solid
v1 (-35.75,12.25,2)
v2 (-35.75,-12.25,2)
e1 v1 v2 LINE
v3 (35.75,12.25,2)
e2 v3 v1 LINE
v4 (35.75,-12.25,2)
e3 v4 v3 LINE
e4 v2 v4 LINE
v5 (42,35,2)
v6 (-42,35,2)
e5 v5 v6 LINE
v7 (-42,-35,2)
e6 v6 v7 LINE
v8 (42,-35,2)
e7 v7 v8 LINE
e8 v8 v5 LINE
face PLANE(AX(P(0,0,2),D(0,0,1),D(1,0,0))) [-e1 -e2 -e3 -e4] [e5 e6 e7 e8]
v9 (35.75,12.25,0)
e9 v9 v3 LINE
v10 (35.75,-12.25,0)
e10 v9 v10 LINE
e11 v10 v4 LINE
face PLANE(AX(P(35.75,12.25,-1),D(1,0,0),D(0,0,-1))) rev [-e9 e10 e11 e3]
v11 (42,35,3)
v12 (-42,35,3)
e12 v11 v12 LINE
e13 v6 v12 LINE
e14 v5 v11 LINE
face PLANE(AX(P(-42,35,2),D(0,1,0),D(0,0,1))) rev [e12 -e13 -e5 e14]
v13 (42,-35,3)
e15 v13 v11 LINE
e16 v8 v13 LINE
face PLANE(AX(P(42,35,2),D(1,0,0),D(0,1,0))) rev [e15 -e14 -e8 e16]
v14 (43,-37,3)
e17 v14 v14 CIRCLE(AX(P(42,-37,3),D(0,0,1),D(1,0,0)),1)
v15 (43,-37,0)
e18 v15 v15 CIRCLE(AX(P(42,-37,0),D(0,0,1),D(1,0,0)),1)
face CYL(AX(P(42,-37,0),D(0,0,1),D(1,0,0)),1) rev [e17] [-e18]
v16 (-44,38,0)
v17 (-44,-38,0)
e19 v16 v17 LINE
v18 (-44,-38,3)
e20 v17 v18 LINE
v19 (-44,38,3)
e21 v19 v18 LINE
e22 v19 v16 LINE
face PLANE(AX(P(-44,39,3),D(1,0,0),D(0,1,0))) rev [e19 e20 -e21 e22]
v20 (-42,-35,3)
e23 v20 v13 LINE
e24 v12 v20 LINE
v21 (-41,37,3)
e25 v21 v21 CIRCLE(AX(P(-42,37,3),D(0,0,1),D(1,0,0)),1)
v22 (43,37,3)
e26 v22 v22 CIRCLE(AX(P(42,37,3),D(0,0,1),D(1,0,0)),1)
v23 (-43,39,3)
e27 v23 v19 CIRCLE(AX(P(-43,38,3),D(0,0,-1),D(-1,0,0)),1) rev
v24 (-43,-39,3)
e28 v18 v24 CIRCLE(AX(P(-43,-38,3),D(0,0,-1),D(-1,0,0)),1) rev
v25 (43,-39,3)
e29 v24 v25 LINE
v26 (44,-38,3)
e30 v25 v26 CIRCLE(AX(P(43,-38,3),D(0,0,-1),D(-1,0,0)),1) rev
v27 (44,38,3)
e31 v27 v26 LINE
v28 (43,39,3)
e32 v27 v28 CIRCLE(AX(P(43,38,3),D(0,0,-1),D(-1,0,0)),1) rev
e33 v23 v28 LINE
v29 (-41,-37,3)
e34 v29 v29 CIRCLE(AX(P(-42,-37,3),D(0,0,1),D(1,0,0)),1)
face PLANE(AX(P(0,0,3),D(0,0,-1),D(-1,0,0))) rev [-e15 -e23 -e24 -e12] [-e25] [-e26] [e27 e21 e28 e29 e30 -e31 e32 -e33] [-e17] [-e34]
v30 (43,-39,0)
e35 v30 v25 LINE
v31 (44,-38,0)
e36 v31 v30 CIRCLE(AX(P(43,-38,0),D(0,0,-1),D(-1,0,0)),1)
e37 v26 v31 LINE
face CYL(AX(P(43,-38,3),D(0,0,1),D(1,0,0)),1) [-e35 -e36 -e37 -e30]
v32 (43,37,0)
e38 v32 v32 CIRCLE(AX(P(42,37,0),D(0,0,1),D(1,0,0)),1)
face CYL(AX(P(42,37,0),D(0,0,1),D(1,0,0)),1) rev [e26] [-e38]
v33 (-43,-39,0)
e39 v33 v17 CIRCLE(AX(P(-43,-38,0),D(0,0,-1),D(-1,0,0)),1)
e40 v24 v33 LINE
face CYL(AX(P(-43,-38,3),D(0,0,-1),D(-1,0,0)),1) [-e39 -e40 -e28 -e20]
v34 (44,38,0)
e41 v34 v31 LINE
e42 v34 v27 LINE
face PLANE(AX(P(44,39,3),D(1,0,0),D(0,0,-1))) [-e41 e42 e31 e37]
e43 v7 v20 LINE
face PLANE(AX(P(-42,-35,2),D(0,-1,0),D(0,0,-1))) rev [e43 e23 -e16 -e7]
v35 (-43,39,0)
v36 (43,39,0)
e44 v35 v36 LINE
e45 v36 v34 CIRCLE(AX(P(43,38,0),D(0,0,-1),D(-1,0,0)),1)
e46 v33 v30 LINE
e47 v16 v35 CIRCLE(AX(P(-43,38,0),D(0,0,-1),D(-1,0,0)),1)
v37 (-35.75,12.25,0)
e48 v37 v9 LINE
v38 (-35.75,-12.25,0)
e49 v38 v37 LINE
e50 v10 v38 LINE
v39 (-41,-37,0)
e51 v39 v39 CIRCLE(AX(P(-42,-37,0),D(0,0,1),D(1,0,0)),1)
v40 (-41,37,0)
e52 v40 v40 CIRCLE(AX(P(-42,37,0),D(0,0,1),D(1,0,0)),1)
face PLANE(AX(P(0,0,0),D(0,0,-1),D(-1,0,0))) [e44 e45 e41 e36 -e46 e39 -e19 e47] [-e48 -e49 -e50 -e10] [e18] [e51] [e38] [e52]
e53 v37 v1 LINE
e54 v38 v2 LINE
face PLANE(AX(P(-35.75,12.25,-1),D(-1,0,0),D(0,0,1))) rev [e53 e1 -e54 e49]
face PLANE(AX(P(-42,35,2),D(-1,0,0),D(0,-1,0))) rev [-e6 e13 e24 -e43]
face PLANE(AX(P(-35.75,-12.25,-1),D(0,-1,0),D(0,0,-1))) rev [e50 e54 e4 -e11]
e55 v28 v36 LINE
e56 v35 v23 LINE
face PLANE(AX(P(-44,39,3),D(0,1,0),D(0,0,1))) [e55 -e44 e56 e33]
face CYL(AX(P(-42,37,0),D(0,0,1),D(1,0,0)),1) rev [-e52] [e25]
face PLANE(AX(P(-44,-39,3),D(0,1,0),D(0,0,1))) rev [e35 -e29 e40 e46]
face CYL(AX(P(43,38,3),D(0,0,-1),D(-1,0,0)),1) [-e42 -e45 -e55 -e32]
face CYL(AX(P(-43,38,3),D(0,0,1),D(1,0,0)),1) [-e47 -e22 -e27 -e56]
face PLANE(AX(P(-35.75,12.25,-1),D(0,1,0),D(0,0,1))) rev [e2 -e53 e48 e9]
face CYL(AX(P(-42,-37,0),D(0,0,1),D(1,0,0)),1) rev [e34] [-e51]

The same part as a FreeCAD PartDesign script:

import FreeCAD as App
import Part
import Sketcher
from FreeCAD import Vector


def edges_at(feature, points):
    """Names of the edges that pass closest to the given points."""
    edges = feature.Shape.Edges
    near = lambda p: min(range(len(edges)), key=lambda i: edges[i].distToShape(Part.Vertex(*p))[0])
    return sorted({f"Edge{near(p) + 1}" for p in points})


def add_polygon(sketch, points):
    """Adds a closed chain of lines whose ends are joined by coincident constraints."""
    first, n = sketch.GeometryCount, len(points)
    for a, b in zip(points, points[1:] + points[:1]):
        sketch.addGeometry(Part.LineSegment(App.Vector(*a, 0), App.Vector(*b, 0)), False)
    for i in range(n):
        sketch.addConstraint(Sketcher.Constraint("Coincident", first + i, 2, first + (i + 1) % n, 1))

doc = App.newDocument("Part")
body = doc.addObject("PartDesign::Body", "Body")

# Sketch on XY plane
sketch1 = doc.addObject("Sketcher::SketchObject", "Sketch")
body.addObject(sketch1)
sketch1.AttachmentSupport = (doc.XY_Plane, [""])
sketch1.MapMode = "FlatFace"
add_polygon(sketch1, [(-44, 39), (-44, -39), (44, -39), (44, 39)])  # lines 0-3
sketch1.addConstraint(Sketcher.Constraint("Vertical", 0))
sketch1.addConstraint(Sketcher.Constraint("Horizontal", 1))
sketch1.addConstraint(Sketcher.Constraint("Vertical", 2))
sketch1.addConstraint(Sketcher.Constraint("Horizontal", 3))
sketch1.addConstraint(Sketcher.Constraint("Symmetric", 0, 2, 2, 2, -1, 1))
sketch1.addConstraint(Sketcher.Constraint("DistanceX", 1, 1, 1, 2, 88.0))
sketch1.addConstraint(Sketcher.Constraint("DistanceY", 0, 2, 0, 1, 78.0))
pad1 = doc.addObject("PartDesign::Pad", "Pad")
body.addObject(pad1)
pad1.Profile = sketch1
pad1.Length = 3

# Sketch on XY plane
sketch2 = doc.addObject("Sketcher::SketchObject", "Sketch001")
body.addObject(sketch2)
sketch2.AttachmentSupport = (doc.XY_Plane, [""])
sketch2.MapMode = "FlatFace"
sketch2.AttachmentOffset = App.Placement(Vector(0, 0, 3), App.Rotation())
add_polygon(sketch2, [(-42, 35), (-42, -35), (42, -35), (42, 35)])  # lines 0-3
sketch2.addConstraint(Sketcher.Constraint("Vertical", 0))
sketch2.addConstraint(Sketcher.Constraint("Horizontal", 1))
sketch2.addConstraint(Sketcher.Constraint("Vertical", 2))
sketch2.addConstraint(Sketcher.Constraint("Horizontal", 3))
sketch2.addConstraint(Sketcher.Constraint("Symmetric", 0, 2, 2, 2, -1, 1))
sketch2.addConstraint(Sketcher.Constraint("DistanceX", 1, 1, 1, 2, 84.0))
sketch2.addConstraint(Sketcher.Constraint("DistanceY", 0, 2, 0, 1, 70.0))
pocket1 = doc.addObject("PartDesign::Pocket", "Pocket")
body.addObject(pocket1)
pocket1.Profile = sketch2
pocket1.Length = 1

# Sketch on XY plane
sketch3 = doc.addObject("Sketcher::SketchObject", "Sketch002")
body.addObject(sketch3)
sketch3.AttachmentSupport = (doc.XY_Plane, [""])
sketch3.MapMode = "FlatFace"
sketch3.AttachmentOffset = App.Placement(Vector(0, 0, 3), App.Rotation())
sketch3.addGeometry(Part.Circle(Vector(-42, 37, 0), Vector(0, 0, 1), 1), False)
sketch3.addGeometry(Part.Circle(Vector(42, 37, 0), Vector(0, 0, 1), 1), False)
sketch3.addGeometry(Part.Circle(Vector(-42, -37, 0), Vector(0, 0, 1), 1), False)
sketch3.addGeometry(Part.Circle(Vector(42, -37, 0), Vector(0, 0, 1), 1), False)
sketch3.addConstraint(Sketcher.Constraint("Equal", 0, 1))
sketch3.addConstraint(Sketcher.Constraint("Equal", 1, 2))
sketch3.addConstraint(Sketcher.Constraint("Equal", 2, 3))
sketch3.addConstraint(Sketcher.Constraint("Symmetric", 1, 3, 2, 3, -1, 1))
sketch3.addConstraint(Sketcher.Constraint("Symmetric", 0, 3, 3, 3, -1, 1))
sketch3.addConstraint(Sketcher.Constraint("Symmetric", 0, 3, 1, 3, -2))
sketch3.addConstraint(Sketcher.Constraint("Diameter", 0, 2.0))
sketch3.addConstraint(Sketcher.Constraint("DistanceX", 0, 3, -1, 1, 42.0))
sketch3.addConstraint(Sketcher.Constraint("DistanceY", -1, 1, 0, 3, 37.0))
pocket2 = doc.addObject("PartDesign::Pocket", "Pocket001")
body.addObject(pocket2)
pocket2.Profile = sketch3
pocket2.Length = 3
doc.recompute()

fillet = doc.addObject("PartDesign::Fillet", "Fillet")
body.addObject(fillet)
fillet.Base = (pocket2, edges_at(pocket2, [
    (-44, -39, 1.5),
    (-44, 39, 1.5),
    (44, 39, 1.5),
    (44, -39, 1.5),
]))
fillet.Radius = 1

# Sketch on XY plane
sketch4 = doc.addObject("Sketcher::SketchObject", "Sketch003")
body.addObject(sketch4)
sketch4.AttachmentSupport = (doc.XY_Plane, [""])
sketch4.MapMode = "FlatFace"
sketch4.AttachmentOffset = App.Placement(Vector(0, 0, 2), App.Rotation())
add_polygon(sketch4, [(-36, 12), (-36, -12), (36, -12), (36, 12)])  # lines 0-3
sketch4.addConstraint(Sketcher.Constraint("Vertical", 0))
sketch4.addConstraint(Sketcher.Constraint("Horizontal", 1))
sketch4.addConstraint(Sketcher.Constraint("Vertical", 2))
sketch4.addConstraint(Sketcher.Constraint("Horizontal", 3))
sketch4.addConstraint(Sketcher.Constraint("Symmetric", 0, 2, 2, 2, -1, 1))
sketch4.addConstraint(Sketcher.Constraint("DistanceX", 1, 1, 1, 2, 71.5))
sketch4.addConstraint(Sketcher.Constraint("DistanceY", 0, 2, 0, 1, 24.5))
pocket3 = doc.addObject("PartDesign::Pocket", "Pocket002")
body.addObject(pocket3)
pocket3.Profile = sketch4
pocket3.Length = 3

doc.recompute()
